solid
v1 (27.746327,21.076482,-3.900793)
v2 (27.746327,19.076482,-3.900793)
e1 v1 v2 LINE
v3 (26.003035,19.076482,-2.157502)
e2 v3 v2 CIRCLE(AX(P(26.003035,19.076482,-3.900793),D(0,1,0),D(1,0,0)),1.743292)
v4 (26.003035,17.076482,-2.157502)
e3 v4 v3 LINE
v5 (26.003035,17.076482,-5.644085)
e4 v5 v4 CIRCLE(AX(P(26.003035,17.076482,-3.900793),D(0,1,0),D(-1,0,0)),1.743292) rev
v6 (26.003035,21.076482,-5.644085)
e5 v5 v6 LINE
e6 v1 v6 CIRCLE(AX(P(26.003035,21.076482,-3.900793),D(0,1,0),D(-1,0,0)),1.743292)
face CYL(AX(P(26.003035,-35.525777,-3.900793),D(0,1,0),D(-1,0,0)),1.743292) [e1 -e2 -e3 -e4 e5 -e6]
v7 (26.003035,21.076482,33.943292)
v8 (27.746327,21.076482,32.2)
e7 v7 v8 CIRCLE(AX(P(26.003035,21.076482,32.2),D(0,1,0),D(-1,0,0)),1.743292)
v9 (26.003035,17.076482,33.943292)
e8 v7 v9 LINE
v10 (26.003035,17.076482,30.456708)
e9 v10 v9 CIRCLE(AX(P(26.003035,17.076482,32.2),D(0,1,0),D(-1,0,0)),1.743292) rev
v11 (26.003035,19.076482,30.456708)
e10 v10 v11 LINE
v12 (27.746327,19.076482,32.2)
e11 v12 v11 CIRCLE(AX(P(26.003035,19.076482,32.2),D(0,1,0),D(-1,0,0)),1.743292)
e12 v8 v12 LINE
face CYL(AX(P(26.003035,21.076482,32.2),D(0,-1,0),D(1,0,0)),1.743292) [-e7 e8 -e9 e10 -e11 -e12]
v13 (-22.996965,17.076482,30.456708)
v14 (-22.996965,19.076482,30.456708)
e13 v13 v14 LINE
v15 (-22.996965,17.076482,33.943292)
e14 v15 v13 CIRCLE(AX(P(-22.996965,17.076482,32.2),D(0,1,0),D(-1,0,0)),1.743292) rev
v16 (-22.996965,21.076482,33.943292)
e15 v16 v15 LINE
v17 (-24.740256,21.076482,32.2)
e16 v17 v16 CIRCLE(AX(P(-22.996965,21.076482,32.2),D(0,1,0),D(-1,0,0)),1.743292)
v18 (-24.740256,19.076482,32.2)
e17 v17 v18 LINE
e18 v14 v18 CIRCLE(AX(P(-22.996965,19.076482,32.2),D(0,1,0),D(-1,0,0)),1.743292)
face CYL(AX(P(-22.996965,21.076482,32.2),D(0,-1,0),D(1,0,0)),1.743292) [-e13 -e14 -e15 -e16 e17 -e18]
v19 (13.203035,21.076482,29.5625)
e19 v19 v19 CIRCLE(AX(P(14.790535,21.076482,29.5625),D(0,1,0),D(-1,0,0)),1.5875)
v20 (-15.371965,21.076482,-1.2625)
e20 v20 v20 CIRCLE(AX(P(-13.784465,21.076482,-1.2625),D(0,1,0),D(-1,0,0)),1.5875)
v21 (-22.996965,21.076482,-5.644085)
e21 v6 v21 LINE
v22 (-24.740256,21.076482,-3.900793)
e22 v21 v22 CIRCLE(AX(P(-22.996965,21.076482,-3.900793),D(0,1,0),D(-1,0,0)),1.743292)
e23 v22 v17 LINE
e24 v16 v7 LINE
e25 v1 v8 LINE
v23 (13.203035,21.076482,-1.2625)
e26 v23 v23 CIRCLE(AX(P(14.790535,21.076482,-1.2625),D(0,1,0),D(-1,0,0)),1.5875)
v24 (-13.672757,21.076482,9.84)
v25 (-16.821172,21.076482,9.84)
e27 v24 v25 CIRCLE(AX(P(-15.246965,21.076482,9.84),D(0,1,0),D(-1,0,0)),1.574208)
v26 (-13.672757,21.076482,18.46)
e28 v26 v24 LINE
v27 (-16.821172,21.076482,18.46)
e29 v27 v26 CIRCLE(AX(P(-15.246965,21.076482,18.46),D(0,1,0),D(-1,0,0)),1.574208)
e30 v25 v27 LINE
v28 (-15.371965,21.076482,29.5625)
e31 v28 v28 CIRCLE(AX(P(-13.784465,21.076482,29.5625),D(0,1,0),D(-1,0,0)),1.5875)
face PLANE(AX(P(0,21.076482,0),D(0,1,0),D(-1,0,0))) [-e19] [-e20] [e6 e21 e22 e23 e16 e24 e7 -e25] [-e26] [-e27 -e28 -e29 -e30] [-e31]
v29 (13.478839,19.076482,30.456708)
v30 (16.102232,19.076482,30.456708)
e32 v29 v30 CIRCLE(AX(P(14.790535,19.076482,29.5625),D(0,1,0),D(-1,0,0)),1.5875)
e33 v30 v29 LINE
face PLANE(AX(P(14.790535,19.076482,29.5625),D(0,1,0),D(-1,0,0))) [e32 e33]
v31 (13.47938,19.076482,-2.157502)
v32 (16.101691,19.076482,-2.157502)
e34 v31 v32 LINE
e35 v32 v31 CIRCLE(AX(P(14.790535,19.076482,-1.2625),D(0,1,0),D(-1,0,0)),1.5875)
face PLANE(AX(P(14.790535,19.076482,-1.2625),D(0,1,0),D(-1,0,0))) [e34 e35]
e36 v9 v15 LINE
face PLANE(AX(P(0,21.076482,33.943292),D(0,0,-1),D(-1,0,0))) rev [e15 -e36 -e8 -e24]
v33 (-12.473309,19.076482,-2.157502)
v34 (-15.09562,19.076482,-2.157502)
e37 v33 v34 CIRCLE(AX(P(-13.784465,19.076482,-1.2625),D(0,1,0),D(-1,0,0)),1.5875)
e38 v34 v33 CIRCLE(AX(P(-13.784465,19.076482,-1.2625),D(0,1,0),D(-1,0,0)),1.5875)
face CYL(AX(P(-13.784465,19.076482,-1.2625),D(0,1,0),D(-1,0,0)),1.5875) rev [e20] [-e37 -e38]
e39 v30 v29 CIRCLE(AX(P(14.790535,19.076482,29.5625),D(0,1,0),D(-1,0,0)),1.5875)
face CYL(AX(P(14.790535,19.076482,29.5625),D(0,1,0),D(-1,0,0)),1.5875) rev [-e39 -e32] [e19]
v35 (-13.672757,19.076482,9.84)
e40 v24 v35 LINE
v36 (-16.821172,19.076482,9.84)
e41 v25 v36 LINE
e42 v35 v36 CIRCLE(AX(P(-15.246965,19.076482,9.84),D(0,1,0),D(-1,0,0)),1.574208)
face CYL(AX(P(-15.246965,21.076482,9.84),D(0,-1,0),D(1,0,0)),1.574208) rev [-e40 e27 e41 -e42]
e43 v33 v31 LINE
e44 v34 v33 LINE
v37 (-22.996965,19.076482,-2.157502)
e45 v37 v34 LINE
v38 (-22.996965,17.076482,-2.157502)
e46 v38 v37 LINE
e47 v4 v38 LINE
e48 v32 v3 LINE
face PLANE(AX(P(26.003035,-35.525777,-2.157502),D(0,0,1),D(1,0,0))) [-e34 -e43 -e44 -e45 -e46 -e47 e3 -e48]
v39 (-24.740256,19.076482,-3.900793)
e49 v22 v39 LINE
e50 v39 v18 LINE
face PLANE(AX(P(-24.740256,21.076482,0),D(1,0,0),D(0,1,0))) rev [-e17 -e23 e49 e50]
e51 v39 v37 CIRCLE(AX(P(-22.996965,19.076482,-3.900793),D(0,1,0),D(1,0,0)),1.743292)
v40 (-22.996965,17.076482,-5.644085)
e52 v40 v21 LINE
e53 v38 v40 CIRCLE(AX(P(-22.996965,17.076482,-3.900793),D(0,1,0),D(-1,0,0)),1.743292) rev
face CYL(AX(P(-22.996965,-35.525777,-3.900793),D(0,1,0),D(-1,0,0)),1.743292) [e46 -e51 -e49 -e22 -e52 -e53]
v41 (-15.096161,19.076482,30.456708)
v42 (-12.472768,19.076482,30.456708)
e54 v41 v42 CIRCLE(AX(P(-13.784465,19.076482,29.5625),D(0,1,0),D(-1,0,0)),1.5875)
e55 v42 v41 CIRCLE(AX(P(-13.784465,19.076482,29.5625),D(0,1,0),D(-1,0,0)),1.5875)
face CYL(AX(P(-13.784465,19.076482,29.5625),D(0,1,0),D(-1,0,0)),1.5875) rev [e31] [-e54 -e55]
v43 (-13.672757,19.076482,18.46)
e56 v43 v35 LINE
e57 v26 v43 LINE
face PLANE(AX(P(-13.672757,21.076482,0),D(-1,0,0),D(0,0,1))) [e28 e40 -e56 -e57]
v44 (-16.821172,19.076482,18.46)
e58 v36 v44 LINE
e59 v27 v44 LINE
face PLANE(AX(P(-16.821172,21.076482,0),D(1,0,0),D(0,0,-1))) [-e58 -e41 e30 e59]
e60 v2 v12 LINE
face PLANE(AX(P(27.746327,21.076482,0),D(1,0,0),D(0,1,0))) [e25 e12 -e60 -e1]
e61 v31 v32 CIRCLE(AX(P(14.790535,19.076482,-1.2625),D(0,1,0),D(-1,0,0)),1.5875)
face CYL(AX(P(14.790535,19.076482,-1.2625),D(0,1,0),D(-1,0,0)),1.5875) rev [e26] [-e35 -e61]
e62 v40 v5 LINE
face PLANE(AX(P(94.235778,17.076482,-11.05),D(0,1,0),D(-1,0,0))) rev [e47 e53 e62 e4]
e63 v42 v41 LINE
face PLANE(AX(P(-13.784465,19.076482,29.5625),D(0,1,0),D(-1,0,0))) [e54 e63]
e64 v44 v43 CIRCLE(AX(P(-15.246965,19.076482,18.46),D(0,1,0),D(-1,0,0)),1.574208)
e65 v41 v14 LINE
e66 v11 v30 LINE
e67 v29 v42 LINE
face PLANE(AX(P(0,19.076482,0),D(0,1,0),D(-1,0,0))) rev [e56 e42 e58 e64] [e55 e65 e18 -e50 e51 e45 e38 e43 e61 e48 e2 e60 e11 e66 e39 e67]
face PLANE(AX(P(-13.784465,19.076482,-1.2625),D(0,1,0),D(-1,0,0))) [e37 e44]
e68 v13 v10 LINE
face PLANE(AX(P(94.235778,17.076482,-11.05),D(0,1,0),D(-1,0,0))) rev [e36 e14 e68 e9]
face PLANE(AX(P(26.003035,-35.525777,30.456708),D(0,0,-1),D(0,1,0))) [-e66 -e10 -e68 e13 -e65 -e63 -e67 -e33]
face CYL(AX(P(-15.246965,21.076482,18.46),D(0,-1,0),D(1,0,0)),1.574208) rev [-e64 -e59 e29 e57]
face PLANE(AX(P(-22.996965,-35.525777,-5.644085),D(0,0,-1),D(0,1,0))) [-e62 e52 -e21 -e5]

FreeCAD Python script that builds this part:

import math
import FreeCAD as App
import Part
import Sketcher
Q = App.Units.Quantity

doc = App.newDocument("Part")
body = doc.addObject("PartDesign::Body", "Body")

# Sketch on XZ plane
sketch1 = doc.addObject("Sketcher::SketchObject", "Sketch")
body.addObject(sketch1)
sketch1.AttachmentSupport = (doc.XZ_Plane, [""])
sketch1.MapMode = "FlatFace"
sketch1.AttachmentOffset = App.Placement(App.Vector(0, 0, -19.076482), App.Rotation())
sketch1.addGeometry(Part.LineSegment(App.Vector(26.003035, -5.644085, 0), App.Vector(-22.996965, -5.644085, 0)), False)
sketch1.addGeometry(Part.ArcOfCircle(Part.Circle(App.Vector(-22.996965, -3.900793, 0), App.Vector(0, 0, 1), 1.743292), math.radians(90), math.radians(270)), False)
sketch1.addGeometry(Part.LineSegment(App.Vector(-22.996965, -2.157502, 0), App.Vector(26.003035, -2.157502, 0)), False)
sketch1.addGeometry(Part.ArcOfCircle(Part.Circle(App.Vector(26.003035, -3.900793, 0), App.Vector(0, 0, 1), 1.743292), math.radians(-90), math.radians(90)), False)
sketch1.addConstraint(Sketcher.Constraint("Tangent", 0, 2, 1, 2))
sketch1.addConstraint(Sketcher.Constraint("Tangent", 1, 1, 2, 1))
sketch1.addConstraint(Sketcher.Constraint("Tangent", 2, 2, 3, 2))
sketch1.addConstraint(Sketcher.Constraint("Tangent", 3, 1, 0, 1))
sketch1.addConstraint(Sketcher.Constraint("Horizontal", 0))
sketch1.addConstraint(Sketcher.Constraint("Horizontal", 2))
sketch1.addConstraint(Sketcher.Constraint("DistanceX", 0, 2, 0, 1, Q("49 mm")))
sketch1.addConstraint(Sketcher.Constraint("Radius", 1, Q("1.743292 mm")))
sketch1.addConstraint(Sketcher.Constraint("DistanceY", 1, 1, -1, 1, Q("2.157502 mm")))
sketch1.addConstraint(Sketcher.Constraint("DistanceX", 1, 3, -1, 1, Q("22.996965 mm")))
pad1 = doc.addObject("PartDesign::Pad", "Pad")
body.addObject(pad1)
pad1.Profile = sketch1
pad1.Length = 2
body2 = doc.addObject("PartDesign::Body", "Body001")

# Sketch on XZ plane
sketch2 = doc.addObject("Sketcher::SketchObject", "Sketch001")
body2.addObject(sketch2)
sketch2.AttachmentSupport = (doc.getObject("XZ_Plane001"), [""])
sketch2.MapMode = "FlatFace"
sketch2.AttachmentOffset = App.Placement(App.Vector(0, 0, -19.076482), App.Rotation())
sketch2.addGeometry(Part.LineSegment(App.Vector(-22.996965, 33.943292, 0), App.Vector(26.003035, 33.943292, 0)), False)
sketch2.addGeometry(Part.ArcOfCircle(Part.Circle(App.Vector(26.003035, 32.2, 0), App.Vector(0, 0, 1), 1.743292), math.radians(-90), math.radians(90)), False)
sketch2.addGeometry(Part.LineSegment(App.Vector(26.003035, 30.456708, 0), App.Vector(-22.996965, 30.456708, 0)), False)
sketch2.addGeometry(Part.ArcOfCircle(Part.Circle(App.Vector(-22.996965, 32.2, 0), App.Vector(0, 0, 1), 1.743292), math.radians(90), math.radians(270)), False)
sketch2.addConstraint(Sketcher.Constraint("Tangent", 0, 2, 1, 2))
sketch2.addConstraint(Sketcher.Constraint("Tangent", 1, 1, 2, 1))
sketch2.addConstraint(Sketcher.Constraint("Tangent", 2, 2, 3, 2))
sketch2.addConstraint(Sketcher.Constraint("Tangent", 3, 1, 0, 1))
sketch2.addConstraint(Sketcher.Constraint("Horizontal", 0))
sketch2.addConstraint(Sketcher.Constraint("Horizontal", 2))
sketch2.addConstraint(Sketcher.Constraint("DistanceX", 0, 1, 0, 2, Q("49 mm")))
sketch2.addConstraint(Sketcher.Constraint("DistanceY", -1, 1, 1, 3, Q("32.2 mm")))
sketch2.addConstraint(Sketcher.Constraint("Radius", 1, Q("1.743292 mm")))
sketch2.addConstraint(Sketcher.Constraint("DistanceX", -1, 1, 1, 3, Q("26.003035 mm")))
pad2 = doc.addObject("PartDesign::Pad", "Pad001")
body2.addObject(pad2)
pad2.Profile = sketch2
pad2.Length = 2
body.AllowCompound = True
doc.recompute()

boolean = doc.addObject("PartDesign::Boolean", "Boolean")
body.addObject(boolean)
boolean.Type = "Fuse"
boolean.addObjects([body2])

# Sketch on XZ plane
sketch3 = doc.addObject("Sketcher::SketchObject", "Sketch002")
body.addObject(sketch3)
sketch3.AttachmentSupport = (doc.XZ_Plane, [""])
sketch3.MapMode = "FlatFace"
sketch3.AttachmentOffset = App.Placement(App.Vector(0, 0, -19.076482), App.Rotation())
sketch3.addGeometry(Part.ArcOfCircle(Part.Circle(App.Vector(26.003035, -3.900793, 0), App.Vector(0, 0, 1), 1.743292), math.radians(-90), math.radians(0)), False)
sketch3.addGeometry(Part.LineSegment(App.Vector(26.003035, -5.644085, 0), App.Vector(-22.996965, -5.644085, 0)), False)
sketch3.addGeometry(Part.ArcOfCircle(Part.Circle(App.Vector(-22.996965, -3.900793, 0), App.Vector(0, 0, 1), 1.743292), math.radians(-180), math.radians(-90)), False)
sketch3.addGeometry(Part.LineSegment(App.Vector(-24.740256, -3.900793, 0), App.Vector(-24.740256, 32.2, 0)), False)
sketch3.addGeometry(Part.ArcOfCircle(Part.Circle(App.Vector(-22.996965, 32.2, 0), App.Vector(0, 0, 1), 1.743292), math.radians(90), math.radians(180)), False)
sketch3.addGeometry(Part.LineSegment(App.Vector(-22.996965, 33.943292, 0), App.Vector(26.003035, 33.943292, 0)), False)
sketch3.addGeometry(Part.ArcOfCircle(Part.Circle(App.Vector(26.003035, 32.2, 0), App.Vector(0, 0, 1), 1.743292), math.radians(0), math.radians(90)), False)
sketch3.addGeometry(Part.LineSegment(App.Vector(27.746327, 32.2, 0), App.Vector(27.746327, -3.900793, 0)), False)
sketch3.addGeometry(Part.ArcOfCircle(Part.Circle(App.Vector(-15.246965, 18.46, 0), App.Vector(0, 0, 1), 1.574208), math.radians(0), math.radians(180)), False)
sketch3.addGeometry(Part.LineSegment(App.Vector(-16.821172, 18.46, 0), App.Vector(-16.821172, 9.84, 0)), False)
sketch3.addGeometry(Part.ArcOfCircle(Part.Circle(App.Vector(-15.246965, 9.84, 0), App.Vector(0, 0, 1), 1.574208), math.radians(180), math.radians(360)), False)
sketch3.addGeometry(Part.LineSegment(App.Vector(-13.672757, 9.84, 0), App.Vector(-13.672757, 18.46, 0)), False)
sketch3.addConstraint(Sketcher.Constraint("Tangent", 0, 1, 1, 1))
sketch3.addConstraint(Sketcher.Constraint("Tangent", 1, 2, 2, 2))
sketch3.addConstraint(Sketcher.Constraint("Tangent", 2, 1, 3, 1))
sketch3.addConstraint(Sketcher.Constraint("Tangent", 3, 2, 4, 2))
sketch3.addConstraint(Sketcher.Constraint("Tangent", 4, 1, 5, 1))
sketch3.addConstraint(Sketcher.Constraint("Tangent", 5, 2, 6, 2))
sketch3.addConstraint(Sketcher.Constraint("Tangent", 6, 1, 7, 1))
sketch3.addConstraint(Sketcher.Constraint("Tangent", 7, 2, 0, 2))
sketch3.addConstraint(Sketcher.Constraint("Tangent", 8, 2, 9, 1))
sketch3.addConstraint(Sketcher.Constraint("Tangent", 9, 2, 10, 1))
sketch3.addConstraint(Sketcher.Constraint("Tangent", 10, 2, 11, 1))
sketch3.addConstraint(Sketcher.Constraint("Tangent", 11, 2, 8, 1))
sketch3.addConstraint(Sketcher.Constraint("Horizontal", 1))
sketch3.addConstraint(Sketcher.Constraint("Vertical", 3))
sketch3.addConstraint(Sketcher.Constraint("Horizontal", 5))
sketch3.addConstraint(Sketcher.Constraint("Vertical", 7))
sketch3.addConstraint(Sketcher.Constraint("Vertical", 9))
sketch3.addConstraint(Sketcher.Constraint("Vertical", 11))
sketch3.addConstraint(Sketcher.Constraint("Equal", 0, 2))
sketch3.addConstraint(Sketcher.Constraint("Equal", 2, 4))
sketch3.addConstraint(Sketcher.Constraint("Equal", 4, 6))
sketch3.addConstraint(Sketcher.Constraint("DistanceX", 1, 2, 1, 1, Q("49 mm")))
sketch3.addConstraint(Sketcher.Constraint("DistanceY", 9, 2, 9, 1, Q("8.62 mm")))
sketch3.addConstraint(Sketcher.Constraint("DistanceY", -1, 1, 4, 3, Q("32.2 mm")))
sketch3.addConstraint(Sketcher.Constraint("DistanceY", -1, 1, 8, 3, Q("18.46 mm")))
sketch3.addConstraint(Sketcher.Constraint("Radius", 0, Q("1.743292 mm")))
sketch3.addConstraint(Sketcher.Constraint("DistanceX", 4, 3, 8, 3, Q("7.75 mm")))
sketch3.addConstraint(Sketcher.Constraint("Radius", 8, Q("1.574208 mm")))
sketch3.addConstraint(Sketcher.Constraint("DistanceY", 3, 1, 3, 2, Q("36.100793 mm")))
sketch3.addConstraint(Sketcher.Constraint("DistanceX", -1, 1, 0, 3, Q("26.003035 mm")))
pad3 = doc.addObject("PartDesign::Pad", "Pad002")
body.addObject(pad3)
pad3.Profile = sketch3
pad3.Length = 2
pad3.Reversed = True

# Sketch on XZ plane
sketch4 = doc.addObject("Sketcher::SketchObject", "Sketch003")
body.addObject(sketch4)
sketch4.AttachmentSupport = (doc.XZ_Plane, [""])
sketch4.MapMode = "FlatFace"
sketch4.AttachmentOffset = App.Placement(App.Vector(0, 0, -21.076482), App.Rotation())
sketch4.addGeometry(Part.Circle(App.Vector(-13.784465, -1.2625, 0), App.Vector(0, 0, 1), 1.5875), False)
sketch4.addGeometry(Part.Circle(App.Vector(14.790535, -1.2625, 0), App.Vector(0, 0, 1), 1.5875), False)
sketch4.addGeometry(Part.Circle(App.Vector(14.790535, 29.5625, 0), App.Vector(0, 0, 1), 1.5875), False)
sketch4.addGeometry(Part.Circle(App.Vector(-13.784465, 29.5625, 0), App.Vector(0, 0, 1), 1.5875), False)
sketch4.addConstraint(Sketcher.Constraint("Equal", 0, 1))
sketch4.addConstraint(Sketcher.Constraint("Equal", 1, 2))
sketch4.addConstraint(Sketcher.Constraint("Equal", 2, 3))
sketch4.addConstraint(Sketcher.Constraint("Horizontal", 0, 3, 1, 3))
sketch4.addConstraint(Sketcher.Constraint("Horizontal", 2, 3, 3, 3))
sketch4.addConstraint(Sketcher.Constraint("Vertical", 1, 3, 2, 3))
sketch4.addConstraint(Sketcher.Constraint("Vertical", 0, 3, 3, 3))
sketch4.addConstraint(Sketcher.Constraint("Diameter", 0, Q("3.175 mm")))
sketch4.addConstraint(Sketcher.Constraint("DistanceX", 0, 3, 1, 3, Q("28.575 mm")))
sketch4.addConstraint(Sketcher.Constraint("DistanceY", 1, 3, 2, 3, Q("30.825 mm")))
sketch4.addConstraint(Sketcher.Constraint("DistanceY", 0, 3, -1, 1, Q("1.2625 mm")))
sketch4.addConstraint(Sketcher.Constraint("DistanceX", 0, 3, -1, 1, Q("13.784465 mm")))
pocket1 = doc.addObject("PartDesign::Pocket", "Pocket")
body.addObject(pocket1)
pocket1.Profile = sketch4
pocket1.Length = 2
pocket1.Reversed = True

doc.recompute()
